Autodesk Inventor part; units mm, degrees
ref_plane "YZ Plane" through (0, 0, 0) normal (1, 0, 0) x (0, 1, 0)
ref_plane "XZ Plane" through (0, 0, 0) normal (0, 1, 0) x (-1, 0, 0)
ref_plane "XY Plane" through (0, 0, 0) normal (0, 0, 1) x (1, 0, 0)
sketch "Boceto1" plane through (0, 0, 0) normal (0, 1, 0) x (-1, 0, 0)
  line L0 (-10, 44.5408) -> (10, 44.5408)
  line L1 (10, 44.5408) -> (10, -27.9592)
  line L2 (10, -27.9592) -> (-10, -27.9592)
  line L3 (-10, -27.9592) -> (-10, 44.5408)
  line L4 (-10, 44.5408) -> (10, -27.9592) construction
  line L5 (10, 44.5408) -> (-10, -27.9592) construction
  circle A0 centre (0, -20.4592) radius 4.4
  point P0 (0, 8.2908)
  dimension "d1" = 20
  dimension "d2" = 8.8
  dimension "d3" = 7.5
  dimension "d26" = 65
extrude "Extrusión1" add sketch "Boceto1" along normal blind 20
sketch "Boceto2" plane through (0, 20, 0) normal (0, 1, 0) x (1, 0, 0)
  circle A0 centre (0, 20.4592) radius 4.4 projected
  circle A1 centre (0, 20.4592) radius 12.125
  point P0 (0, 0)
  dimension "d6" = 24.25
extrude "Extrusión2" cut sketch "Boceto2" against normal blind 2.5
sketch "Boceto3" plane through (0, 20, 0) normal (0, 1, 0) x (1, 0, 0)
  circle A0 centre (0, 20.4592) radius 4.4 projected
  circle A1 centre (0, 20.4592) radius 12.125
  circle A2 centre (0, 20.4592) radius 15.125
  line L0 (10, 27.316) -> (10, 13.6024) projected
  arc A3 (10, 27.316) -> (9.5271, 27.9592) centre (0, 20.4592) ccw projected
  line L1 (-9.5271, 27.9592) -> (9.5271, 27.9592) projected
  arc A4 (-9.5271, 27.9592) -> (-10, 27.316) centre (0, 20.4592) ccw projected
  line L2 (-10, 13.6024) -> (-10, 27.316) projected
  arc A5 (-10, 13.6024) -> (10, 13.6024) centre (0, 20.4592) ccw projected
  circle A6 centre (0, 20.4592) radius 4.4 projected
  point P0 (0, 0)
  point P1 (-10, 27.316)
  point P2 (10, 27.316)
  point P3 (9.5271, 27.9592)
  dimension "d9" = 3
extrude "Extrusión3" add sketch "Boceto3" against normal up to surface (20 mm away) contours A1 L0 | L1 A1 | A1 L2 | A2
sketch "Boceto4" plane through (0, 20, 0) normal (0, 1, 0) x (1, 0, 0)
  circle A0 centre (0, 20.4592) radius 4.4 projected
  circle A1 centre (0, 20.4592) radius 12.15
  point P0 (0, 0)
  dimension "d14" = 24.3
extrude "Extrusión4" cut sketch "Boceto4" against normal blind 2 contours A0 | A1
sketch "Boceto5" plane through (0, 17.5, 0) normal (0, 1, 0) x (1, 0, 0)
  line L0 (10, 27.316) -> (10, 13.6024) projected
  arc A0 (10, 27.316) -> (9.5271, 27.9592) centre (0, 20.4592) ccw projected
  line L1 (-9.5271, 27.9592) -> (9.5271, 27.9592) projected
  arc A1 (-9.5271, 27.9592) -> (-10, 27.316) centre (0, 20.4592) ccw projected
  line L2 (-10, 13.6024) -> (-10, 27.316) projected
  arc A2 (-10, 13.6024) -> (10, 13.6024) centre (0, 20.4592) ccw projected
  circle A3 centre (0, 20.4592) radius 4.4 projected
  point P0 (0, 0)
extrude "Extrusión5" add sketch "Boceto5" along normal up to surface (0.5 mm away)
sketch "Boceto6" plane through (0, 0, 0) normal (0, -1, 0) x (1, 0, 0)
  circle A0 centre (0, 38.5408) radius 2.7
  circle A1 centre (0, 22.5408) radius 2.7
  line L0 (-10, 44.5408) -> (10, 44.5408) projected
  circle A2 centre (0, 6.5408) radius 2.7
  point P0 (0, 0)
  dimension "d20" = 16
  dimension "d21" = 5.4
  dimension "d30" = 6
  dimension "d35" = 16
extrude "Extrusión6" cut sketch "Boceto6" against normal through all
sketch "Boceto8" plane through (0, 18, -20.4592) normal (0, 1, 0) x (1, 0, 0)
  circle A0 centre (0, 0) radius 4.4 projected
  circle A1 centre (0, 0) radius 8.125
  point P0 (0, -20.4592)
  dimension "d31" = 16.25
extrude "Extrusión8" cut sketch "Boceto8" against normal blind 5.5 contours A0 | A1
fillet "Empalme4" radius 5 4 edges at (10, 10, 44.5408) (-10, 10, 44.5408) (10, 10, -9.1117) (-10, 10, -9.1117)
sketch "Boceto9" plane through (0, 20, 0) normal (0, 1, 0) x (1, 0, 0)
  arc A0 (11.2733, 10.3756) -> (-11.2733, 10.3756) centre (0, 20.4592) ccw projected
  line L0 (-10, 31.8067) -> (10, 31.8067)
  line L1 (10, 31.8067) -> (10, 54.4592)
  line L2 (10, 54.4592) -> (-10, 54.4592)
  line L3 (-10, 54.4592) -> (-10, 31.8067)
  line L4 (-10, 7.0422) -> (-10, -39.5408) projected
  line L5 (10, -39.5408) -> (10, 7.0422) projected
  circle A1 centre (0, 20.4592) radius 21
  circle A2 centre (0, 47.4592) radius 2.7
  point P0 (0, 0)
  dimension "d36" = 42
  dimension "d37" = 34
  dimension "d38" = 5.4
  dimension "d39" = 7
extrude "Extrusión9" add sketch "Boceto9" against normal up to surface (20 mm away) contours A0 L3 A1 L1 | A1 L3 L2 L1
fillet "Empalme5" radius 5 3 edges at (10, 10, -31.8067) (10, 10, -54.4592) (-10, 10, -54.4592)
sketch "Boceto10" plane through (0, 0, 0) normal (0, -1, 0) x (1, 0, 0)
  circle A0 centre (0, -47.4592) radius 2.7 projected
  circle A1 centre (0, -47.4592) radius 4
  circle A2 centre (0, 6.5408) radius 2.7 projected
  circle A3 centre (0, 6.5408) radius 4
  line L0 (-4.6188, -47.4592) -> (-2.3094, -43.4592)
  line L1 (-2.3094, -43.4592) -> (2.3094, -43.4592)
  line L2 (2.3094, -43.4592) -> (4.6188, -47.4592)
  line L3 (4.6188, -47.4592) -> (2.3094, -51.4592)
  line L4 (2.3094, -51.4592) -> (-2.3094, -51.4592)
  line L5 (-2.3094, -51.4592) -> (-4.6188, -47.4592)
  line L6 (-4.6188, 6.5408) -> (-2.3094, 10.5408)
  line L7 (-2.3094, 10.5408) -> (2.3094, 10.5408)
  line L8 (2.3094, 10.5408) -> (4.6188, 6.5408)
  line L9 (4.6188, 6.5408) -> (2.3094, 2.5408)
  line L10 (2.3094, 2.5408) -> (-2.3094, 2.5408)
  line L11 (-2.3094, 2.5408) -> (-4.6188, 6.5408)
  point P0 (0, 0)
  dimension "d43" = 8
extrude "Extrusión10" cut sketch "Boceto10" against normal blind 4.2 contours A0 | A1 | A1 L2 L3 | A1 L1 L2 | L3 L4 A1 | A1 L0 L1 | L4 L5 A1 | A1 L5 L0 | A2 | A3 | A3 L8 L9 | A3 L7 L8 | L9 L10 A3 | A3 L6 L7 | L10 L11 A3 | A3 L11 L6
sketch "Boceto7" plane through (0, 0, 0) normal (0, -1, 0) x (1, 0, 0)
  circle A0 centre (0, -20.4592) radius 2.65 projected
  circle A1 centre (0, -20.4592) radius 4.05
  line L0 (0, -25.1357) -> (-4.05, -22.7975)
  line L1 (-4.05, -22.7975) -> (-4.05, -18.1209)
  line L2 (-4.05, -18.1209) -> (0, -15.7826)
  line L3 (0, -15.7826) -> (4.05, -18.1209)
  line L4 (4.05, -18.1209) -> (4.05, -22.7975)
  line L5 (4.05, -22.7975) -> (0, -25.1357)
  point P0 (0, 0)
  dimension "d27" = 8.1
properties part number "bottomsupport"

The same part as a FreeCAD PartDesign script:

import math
import FreeCAD as App
import Part
import Sketcher

V = App.Vector
Q = App.Units.Quantity


def edges_at(feature, points):
    """Names of the edges that pass closest to the given points."""
    edges = feature.Shape.Edges
    near = lambda p: min(range(len(edges)), key=lambda i: edges[i].distToShape(Part.Vertex(*p))[0])
    return sorted({f"Edge{near(p) + 1}" for p in points})


def add_polygon(sketch, points):
    """Adds a closed chain of lines whose ends are joined by coincident constraints."""
    first, n = sketch.GeometryCount, len(points)
    for a, b in zip(points, points[1:] + points[:1]):
        sketch.addGeometry(Part.LineSegment(App.Vector(*a, 0), App.Vector(*b, 0)), False)
    for i in range(n):
        sketch.addConstraint(Sketcher.Constraint("Coincident", first + i, 2, first + (i + 1) % n, 1))

doc = App.newDocument("Part")
body = doc.addObject("PartDesign::Body", "Body")

sketch1 = body.newObject("Sketcher::SketchObject", "Sketch")
sketch1.AttachmentSupport = (doc.getObject("XZ_Plane"), [""])
sketch1.MapMode = "FlatFace"
add_polygon(sketch1, [(-10, 44.5), (10, 44.5), (10, -28), (-10, -28)])
sketch1.addGeometry(Part.Circle(V(0, -20.5, 0), V(0, 0, 1), 4.4), False)
sketch1.addConstraint([
    Sketcher.Constraint("Horizontal", 0),
    Sketcher.Constraint("Vertical", 1),
    Sketcher.Constraint("Horizontal", 2),
    Sketcher.Constraint("Vertical", 3),
    Sketcher.Constraint("PointOnObject", 4, 3, -2),
    Sketcher.Constraint("Diameter", 4, Q("8.8 mm")),
    Sketcher.Constraint("DistanceX", 0, 1, 0, 2, Q("20 mm")),
    Sketcher.Constraint("DistanceY", 4, 3, 0, 2, Q("65 mm")),
    Sketcher.Constraint("DistanceY", 1, 2, 4, 3, Q("7.5 mm")),
    Sketcher.Constraint("DistanceX", -1, 1, 0, 2, Q("10 mm")),
    Sketcher.Constraint("DistanceY", 4, 3, -1, 1, Q("20.4592 mm")),
])
pad1 = body.newObject("PartDesign::Pad", "Pad")
pad1.Profile = sketch1
pad1.Length = 20
pad1.Reversed = True

sketch2 = body.newObject("Sketcher::SketchObject", "Sketch001")
sketch2.AttachmentSupport = (doc.getObject("XZ_Plane"), [""])
sketch2.MapMode = "FlatFace"
sketch2.AttachmentOffset = App.Placement(V(0, 0, -20), App.Rotation())
sketch2.addGeometry([
    Part.Circle(V(0, -20.5, 0), V(0, 0, 1), 12.1),
    Part.Circle(V(0, -20.5, 0), V(0, 0, 1), 4.4),
], False)
sketch2.addConstraint([
    Sketcher.Constraint("Coincident", 1, 3, 0, 3),
    Sketcher.Constraint("PointOnObject", 0, 3, -2),
    Sketcher.Constraint("Diameter", 0, Q("24.25 mm")),
    Sketcher.Constraint("Diameter", 1, Q("8.8 mm")),
    Sketcher.Constraint("DistanceY", 0, 3, -1, 1, Q("20.4592 mm")),
])
pocket1 = body.newObject("PartDesign::Pocket", "Pocket")
pocket1.Profile = sketch2
pocket1.Length = 2.5
pocket1.Reversed = True

sketch3 = body.newObject("Sketcher::SketchObject", "Sketch002")
sketch3.AttachmentSupport = (doc.getObject("XZ_Plane"), [""])
sketch3.MapMode = "FlatFace"
sketch3.AttachmentOffset = App.Placement(V(0, 0, -20), App.Rotation())
sketch3.addGeometry([
    Part.Circle(V(0, -20.5, 0), V(0, 0, 1), 15.1),
    Part.LineSegment(V(10, -27.3, 0), V(10, -13.6, 0)),
    Part.ArcOfCircle(Part.Circle(V(0, -20.5, 0), V(0, 0, 1), 12.1), math.radians(34), math.radians(146)),
    Part.LineSegment(V(-10, -13.6, 0), V(-10, -27.3, 0)),
    Part.ArcOfCircle(Part.Circle(V(0, -20.5, 0), V(0, 0, 1), 12.1), math.radians(-145.56), math.radians(-141.79)),
    Part.LineSegment(V(-9.5, -28, 0), V(9.5, -28, 0)),
    Part.ArcOfCircle(Part.Circle(V(0, -20.5, 0), V(0, 0, 1), 12.1), math.radians(-38.21), math.radians(-34.44)),
], False)
sketch3.addConstraint([
    Sketcher.Constraint("Coincident", 1, 2, 2, 1),
    Sketcher.Constraint("Coincident", 2, 2, 3, 1),
    Sketcher.Constraint("Coincident", 3, 2, 4, 1),
    Sketcher.Constraint("Coincident", 4, 2, 5, 1),
    Sketcher.Constraint("Coincident", 5, 2, 6, 1),
    Sketcher.Constraint("Coincident", 6, 2, 1, 1),
    Sketcher.Constraint("Vertical", 1),
    Sketcher.Constraint("Vertical", 3),
    Sketcher.Constraint("Horizontal", 5),
    Sketcher.Constraint("Coincident", 2, 3, 0, 3),
    Sketcher.Constraint("Coincident", 4, 3, 0, 3),
    Sketcher.Constraint("Coincident", 6, 3, 0, 3),
    Sketcher.Constraint("Equal", 2, 4),
    Sketcher.Constraint("Equal", 4, 6),
    Sketcher.Constraint("Symmetric", 1, 2, 2, 2, -2),
    Sketcher.Constraint("Diameter", 0, Q("30.25 mm")),
    Sketcher.Constraint("DistanceX", -1, 1, 1, 2, Q("10 mm")),
    Sketcher.Constraint("Radius", 2, Q("12.125 mm")),
    Sketcher.Constraint("DistanceY", 4, 2, 0, 3, Q("7.5 mm")),
    Sketcher.Constraint("DistanceY", 3, 2, -1, 1, Q("27.316 mm")),
])
pad2 = body.newObject("PartDesign::Pad", "Pad001")
pad2.Profile = sketch3
pad2.Length = 20

sketch4 = body.newObject("Sketcher::SketchObject", "Sketch003")
sketch4.AttachmentSupport = (doc.getObject("XZ_Plane"), [""])
sketch4.MapMode = "FlatFace"
sketch4.AttachmentOffset = App.Placement(V(0, 0, -20), App.Rotation())
sketch4.addGeometry(Part.Circle(V(0, -20, 0), V(0, 0, 1), 12), False)
sketch4.addConstraint([
    Sketcher.Constraint("PointOnObject", 0, 3, -2),
    Sketcher.Constraint("Diameter", 0, Q("24.3 mm")),
    Sketcher.Constraint("DistanceY", 0, 3, -1, 1, Q("20.4592 mm")),
])
pocket2 = body.newObject("PartDesign::Pocket", "Pocket001")
pocket2.Profile = sketch4
pocket2.Length = 2
pocket2.Reversed = True

sketch5 = body.newObject("Sketcher::SketchObject", "Sketch004")
sketch5.AttachmentSupport = (doc.getObject("XZ_Plane"), [""])
sketch5.MapMode = "FlatFace"
sketch5.AttachmentOffset = App.Placement(V(0, 0, -17.5), App.Rotation())
sketch5.addGeometry([
    Part.LineSegment(V(10, -13.6, 0), V(10, -27.3, 0)),
    Part.ArcOfCircle(Part.Circle(V(0, -20.5, 0), V(0, 0, 1), 12.1), math.radians(-38.21), math.radians(-34.44)),
    Part.LineSegment(V(9.5, -28, 0), V(-9.5, -28, 0)),
    Part.ArcOfCircle(Part.Circle(V(0, -20.5, 0), V(0, 0, 1), 12.1), math.radians(-145.56), math.radians(-141.79)),
    Part.LineSegment(V(-10, -27.3, 0), V(-10, -13.6, 0)),
    Part.ArcOfCircle(Part.Circle(V(0, -20.5, 0), V(0, 0, 1), 12.1), math.radians(34), math.radians(146)),
    Part.Circle(V(0, -20.5, 0), V(0, 0, 1), 4.4),
], False)
sketch5.addConstraint([
    Sketcher.Constraint("Coincident", 0, 2, 1, 2),
    Sketcher.Constraint("Coincident", 1, 1, 2, 1),
    Sketcher.Constraint("Coincident", 2, 2, 3, 2),
    Sketcher.Constraint("Coincident", 3, 1, 4, 1),
    Sketcher.Constraint("Coincident", 4, 2, 5, 2),
    Sketcher.Constraint("Coincident", 5, 1, 0, 1),
    Sketcher.Constraint("Vertical", 0),
    Sketcher.Constraint("Horizontal", 2),
    Sketcher.Constraint("Vertical", 4),
    Sketcher.Constraint("Coincident", 6, 3, 5, 3),
    Sketcher.Constraint("Symmetric", 0, 2, 3, 1, -2),
    Sketcher.Constraint("PointOnObject", 5, 3, -2),
    Sketcher.Constraint("Vertical", 1, 3, 3, 3),
    Sketcher.Constraint("Diameter", 6, Q("8.8 mm")),
    Sketcher.Constraint("DistanceX", -1, 1, 0, 2, Q("10 mm")),
    Sketcher.Constraint("Radius", 5, Q("12.125 mm")),
    Sketcher.Constraint("Radius", 1, Q("12.1223 mm")),
    Sketcher.Constraint("Radius", 3, Q("12.1277 mm")),
    Sketcher.Constraint("DistanceY", 1, 1, 5, 3, Q("7.5 mm")),
    Sketcher.Constraint("DistanceX", 2, 2, 2, 1, Q("19.0542 mm")),
    Sketcher.Constraint("DistanceY", 0, 2, -1, 1, Q("27.316 mm")),
    Sketcher.Constraint("DistanceX", -1, 1, 1, 1, Q("9.527 mm")),
])
pad3 = body.newObject("PartDesign::Pad", "Pad002")
pad3.Profile = sketch5
pad3.Length = 0.5
pad3.Reversed = True

sketch6 = body.newObject("Sketcher::SketchObject", "Sketch005")
sketch6.AttachmentSupport = (doc.getObject("XZ_Plane"), [""])
sketch6.MapMode = "FlatFace"
sketch6.addGeometry([
    Part.Circle(V(0, 38.5, 0), V(0, 0, 1), 2.7),
    Part.Circle(V(0, 22.5, 0), V(0, 0, 1), 2.7),
    Part.Circle(V(0, 6.5, 0), V(0, 0, 1), 2.7),
], False)
sketch6.addConstraint([
    Sketcher.Constraint("Equal", 0, 1),
    Sketcher.Constraint("Equal", 1, 2),
    Sketcher.Constraint("PointOnObject", 0, 3, -2),
    Sketcher.Constraint("PointOnObject", 1, 3, -2),
    Sketcher.Constraint("PointOnObject", 2, 3, -2),
    Sketcher.Constraint("Diameter", 0, Q("5.4 mm")),
    Sketcher.Constraint("DistanceY", 1, 3, 0, 3, Q("16 mm")),
    Sketcher.Constraint("DistanceY", 2, 3, 1, 3, Q("16 mm")),
    Sketcher.Constraint("DistanceY", -1, 1, 0, 3, Q("38.5408 mm")),
])
pocket3 = body.newObject("PartDesign::Pocket", "Pocket002")
pocket3.Profile = sketch6
pocket3.Type = "ThroughAll"

sketch7 = body.newObject("Sketcher::SketchObject", "Sketch006")
sketch7.AttachmentSupport = (doc.getObject("XZ_Plane"), [""])
sketch7.MapMode = "FlatFace"
sketch7.AttachmentOffset = App.Placement(V(0, 0, -18), App.Rotation())
sketch7.addGeometry(Part.Circle(V(0, -20, 0), V(0, 0, 1), 8), False)
sketch7.addConstraint([
    Sketcher.Constraint("PointOnObject", 0, 3, -2),
    Sketcher.Constraint("Diameter", 0, Q("16.25 mm")),
    Sketcher.Constraint("DistanceY", 0, 3, -1, 1, Q("20.4592 mm")),
])
pocket4 = body.newObject("PartDesign::Pocket", "Pocket003")
pocket4.Profile = sketch7
pocket4.Length = 5.5
pocket4.Reversed = True
doc.recompute()

fillet = body.newObject("PartDesign::Fillet", "Fillet")
fillet.Base = (pocket4, edges_at(pocket4, [
    (10, 10, 44.541),
    (-10, 10, 44.541),
    (10, 10, -9.112),
    (-10, 10, -9.112),
]))
fillet.Radius = 5

sketch8 = body.newObject("Sketcher::SketchObject", "Sketch007")
sketch8.AttachmentSupport = (doc.getObject("XZ_Plane"), [""])
sketch8.MapMode = "FlatFace"
sketch8.AttachmentOffset = App.Placement(V(0, 0, -20), App.Rotation())
sketch8.addGeometry([
    Part.ArcOfCircle(Part.Circle(V(0, -20.5, 0), V(0, 0, 1), 15.1), math.radians(-131), math.radians(-49)),
    Part.LineSegment(V(10, -31.8, 0), V(10, -54.5, 0)),
    Part.LineSegment(V(10, -54.5, 0), V(-10, -54.5, 0)),
    Part.LineSegment(V(-10, -54.5, 0), V(-10, -31.8, 0)),
    Part.Circle(V(0, -47.5, 0), V(0, 0, 1), 2.7),
], False)
sketch8.addConstraint([
    Sketcher.Constraint("Coincident", 0, 2, 1, 1),
    Sketcher.Constraint("Coincident", 1, 2, 2, 1),
    Sketcher.Constraint("Coincident", 2, 2, 3, 1),
    Sketcher.Constraint("Coincident", 3, 2, 0, 1),
    Sketcher.Constraint("Vertical", 1),
    Sketcher.Constraint("Horizontal", 2),
    Sketcher.Constraint("Vertical", 3),
    Sketcher.Constraint("Symmetric", 0, 2, 3, 2, -2),
    Sketcher.Constraint("PointOnObject", 4, 3, -2),
    Sketcher.Constraint("Diameter", 4, Q("5.4 mm")),
    Sketcher.Constraint("DistanceY", 1, 2, 4, 3, Q("7 mm")),
    Sketcher.Constraint("DistanceY", 1, 2, 0, 3, Q("34 mm")),
    Sketcher.Constraint("DistanceX", 2, 2, 2, 1, Q("20 mm")),
    Sketcher.Constraint("Radius", 0, Q("15.125 mm")),
    Sketcher.Constraint("DistanceY", 0, 3, -1, 1, Q("20.4592 mm")),
])
pad4 = body.newObject("PartDesign::Pad", "Pad003")
pad4.Profile = sketch8
pad4.Length = 20
doc.recompute()

fillet2 = body.newObject("PartDesign::Fillet", "Fillet001")
fillet2.Base = (pad4, edges_at(pad4, [(10, 10, -31.807), (10, 10, -54.459), (-10, 10, -54.459)]))
fillet2.Radius = 5

sketch9 = body.newObject("Sketcher::SketchObject", "Sketch008")
sketch9.AttachmentSupport = (doc.getObject("XZ_Plane"), [""])
sketch9.MapMode = "FlatFace"
add_polygon(sketch9, [(4.6, -47.5), (2.3, -43.5), (-2.3, -43.5), (-4.6, -47.5), (-2.3, -51.5), (2.3, -51.5)])
add_polygon(sketch9, [(4.6, 6.5), (2.3, 10.5), (-2.3, 10.5), (-4.6, 6.5), (-2.3, 2.5), (2.3, 2.5)])
sketch9.addConstraint([
    Sketcher.Constraint("Horizontal", 1),
    Sketcher.Constraint("Horizontal", 4),
    Sketcher.Constraint("Horizontal", 7),
    Sketcher.Constraint("Horizontal", 10),
    Sketcher.Constraint("Symmetric", 2, 2, 5, 2, -2),
    Sketcher.Constraint("Symmetric", 8, 2, 11, 2, -2),
    Sketcher.Constraint("Parallel", 0, 3),
    Sketcher.Constraint("Parallel", 2, 5),
    Sketcher.Constraint("Parallel", 3, 6),
    Sketcher.Constraint("Parallel", 5, 8),
    Sketcher.Constraint("Parallel", 6, 9),
    Sketcher.Constraint("Parallel", 8, 11),
    Sketcher.Constraint("Vertical", 1, 2, 3, 2),
    Sketcher.Constraint("Vertical", 0, 2, 4, 2),
    Sketcher.Constraint("Vertical", 4, 2, 6, 2),
    Sketcher.Constraint("Vertical", 2, 2, 8, 2),
    Sketcher.Constraint("Vertical", 7, 2, 9, 2),
    Sketcher.Constraint("DistanceY", 3, 2, 1, 2, Q("8 mm")),
    Sketcher.Constraint("Angle", 0, Q("120 deg")),
    Sketcher.Constraint("DistanceY", 0, 2, 6, 2, Q("54 mm")),
    Sketcher.Constraint("DistanceX", 1, 2, 1, 1, Q("4.6188 mm")),
    Sketcher.Constraint("DistanceY", 0, 2, -1, 1, Q("43.4592 mm")),
])
pocket5 = body.newObject("PartDesign::Pocket", "Pocket004")
pocket5.Profile = sketch9
pocket5.Length = 4.2

doc.recompute()
